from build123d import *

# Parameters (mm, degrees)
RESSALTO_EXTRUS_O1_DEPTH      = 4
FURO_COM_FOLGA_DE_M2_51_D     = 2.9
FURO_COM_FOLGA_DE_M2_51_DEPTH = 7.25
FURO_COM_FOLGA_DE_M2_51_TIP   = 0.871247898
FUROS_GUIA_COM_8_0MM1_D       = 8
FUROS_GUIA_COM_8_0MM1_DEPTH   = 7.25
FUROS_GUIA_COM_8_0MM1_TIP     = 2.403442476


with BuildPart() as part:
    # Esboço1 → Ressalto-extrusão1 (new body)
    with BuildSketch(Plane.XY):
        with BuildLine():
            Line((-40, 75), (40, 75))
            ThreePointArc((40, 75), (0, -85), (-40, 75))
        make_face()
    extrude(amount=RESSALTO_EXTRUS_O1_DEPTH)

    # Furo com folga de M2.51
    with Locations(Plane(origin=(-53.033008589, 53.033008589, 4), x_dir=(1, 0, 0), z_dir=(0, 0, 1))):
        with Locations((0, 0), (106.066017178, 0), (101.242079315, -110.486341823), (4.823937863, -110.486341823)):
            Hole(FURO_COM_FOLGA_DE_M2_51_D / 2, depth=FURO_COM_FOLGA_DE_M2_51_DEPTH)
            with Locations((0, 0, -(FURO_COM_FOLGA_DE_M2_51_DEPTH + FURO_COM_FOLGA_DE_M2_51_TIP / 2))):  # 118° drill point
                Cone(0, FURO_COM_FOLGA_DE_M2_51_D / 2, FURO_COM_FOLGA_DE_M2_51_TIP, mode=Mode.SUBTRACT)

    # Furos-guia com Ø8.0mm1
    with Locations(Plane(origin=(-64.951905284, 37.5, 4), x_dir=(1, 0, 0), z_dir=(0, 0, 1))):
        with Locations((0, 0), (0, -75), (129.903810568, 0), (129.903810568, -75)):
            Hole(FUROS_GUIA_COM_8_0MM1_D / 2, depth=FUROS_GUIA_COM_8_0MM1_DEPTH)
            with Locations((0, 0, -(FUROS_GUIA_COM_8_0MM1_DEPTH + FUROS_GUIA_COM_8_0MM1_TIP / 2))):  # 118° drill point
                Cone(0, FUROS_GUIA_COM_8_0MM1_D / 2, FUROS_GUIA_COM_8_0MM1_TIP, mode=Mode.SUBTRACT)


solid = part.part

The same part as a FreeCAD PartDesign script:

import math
import FreeCAD as App
import Part
import Sketcher

V = App.Vector
Q = App.Units.Quantity

doc = App.newDocument("Part")
body = doc.addObject("PartDesign::Body", "Body")

sketch1 = body.newObject("Sketcher::SketchObject", "Sketch")
sketch1.AttachmentSupport = (doc.getObject("XY_Plane"), [""])
sketch1.MapMode = "FlatFace"
sketch1.addGeometry(Part.LineSegment(V(40, 75, 0), V(-40, 75, 0)), False)
sketch1.addGeometry(Part.ArcOfCircle(Part.Circle(V(0, 0, 0), V(0, 0, 1), 85), math.radians(118), math.radians(422)), False)
sketch1.addConstraint(Sketcher.Constraint("Coincident", 0, 1, 1, 2))
sketch1.addConstraint(Sketcher.Constraint("Coincident", 1, 1, 0, 2))
sketch1.addConstraint(Sketcher.Constraint("Horizontal", 0))
sketch1.addConstraint(Sketcher.Constraint("Coincident", 1, 3, -1, 1))
sketch1.addConstraint(Sketcher.Constraint("Radius", 1, Q("85 mm")))
sketch1.addConstraint(Sketcher.Constraint("DistanceX", 0, 2, 0, 1, Q("80 mm")))
pad1 = body.newObject("PartDesign::Pad", "Pad")
pad1.Profile = sketch1
pad1.Length = 4

sketch2 = body.newObject("Sketcher::SketchObject", "Sketch001")
sketch2.AttachmentSupport = (doc.getObject("XY_Plane"), [""])
sketch2.MapMode = "FlatFace"
sketch2.AttachmentOffset = App.Placement(V(0, 0, 4), App.Rotation())
sketch2.addGeometry(Part.Circle(V(-53, 53, 0), V(0, 0, 1), 1.4), False)
sketch2.addGeometry(Part.Circle(V(53, 53, 0), V(0, 0, 1), 1.4), False)
sketch2.addGeometry(Part.Circle(V(48.2, -57.5, 0), V(0, 0, 1), 1.4), False)
sketch2.addGeometry(Part.Circle(V(-48.2, -57.5, 0), V(0, 0, 1), 1.4), False)
sketch2.addConstraint(Sketcher.Constraint("Equal", 0, 1))
sketch2.addConstraint(Sketcher.Constraint("Equal", 1, 2))
sketch2.addConstraint(Sketcher.Constraint("Equal", 2, 3))
sketch2.addConstraint(Sketcher.Constraint("Symmetric", 0, 3, 1, 3, -2))
sketch2.addConstraint(Sketcher.Constraint("Symmetric", 2, 3, 3, 3, -2))
sketch2.addConstraint(Sketcher.Constraint("Diameter", 0, Q("2.9 mm")))
sketch2.addConstraint(Sketcher.Constraint("DistanceX", 0, 3, -1, 1, Q("53.033009 mm")))
sketch2.addConstraint(Sketcher.Constraint("DistanceY", -1, 1, 0, 3, Q("53.033009 mm")))
sketch2.addConstraint(Sketcher.Constraint("DistanceX", -1, 1, 2, 3, Q("48.209071 mm")))
sketch2.addConstraint(Sketcher.Constraint("DistanceY", 2, 3, 1, 3, Q("110.486342 mm")))
doc.recompute()
hole = body.newObject("PartDesign::Hole", "Hole")
hole.Profile = sketch2
hole.ThreadType = "None"
hole.Diameter = 2.9
hole.DepthType = "Dimension"
hole.Depth = 7.25
hole.DrillPoint = "Angled"
hole.DrillPointAngle = 118

sketch3 = body.newObject("Sketcher::SketchObject", "Sketch002")
sketch3.AttachmentSupport = (doc.getObject("XY_Plane"), [""])
sketch3.MapMode = "FlatFace"
sketch3.AttachmentOffset = App.Placement(V(0, 0, 4), App.Rotation())
sketch3.addGeometry(Part.Circle(V(-65, 37.5, 0), V(0, 0, 1), 4), False)
sketch3.addGeometry(Part.Circle(V(-65, -37.5, 0), V(0, 0, 1), 4), False)
sketch3.addGeometry(Part.Circle(V(65, 37.5, 0), V(0, 0, 1), 4), False)
sketch3.addGeometry(Part.Circle(V(65, -37.5, 0), V(0, 0, 1), 4), False)
sketch3.addConstraint(Sketcher.Constraint("Equal", 0, 1))
sketch3.addConstraint(Sketcher.Constraint("Equal", 1, 2))
sketch3.addConstraint(Sketcher.Constraint("Equal", 2, 3))
sketch3.addConstraint(Sketcher.Constraint("Symmetric", 1, 3, 2, 3, -1, 1))
sketch3.addConstraint(Sketcher.Constraint("Symmetric", 0, 3, 3, 3, -1, 1))
sketch3.addConstraint(Sketcher.Constraint("Symmetric", 0, 3, 2, 3, -2))
sketch3.addConstraint(Sketcher.Constraint("Diameter", 0, Q("8 mm")))
sketch3.addConstraint(Sketcher.Constraint("DistanceY", 1, 3, 0, 3, Q("75 mm")))
sketch3.addConstraint(Sketcher.Constraint("DistanceX", 0, 3, 2, 3, Q("129.903811 mm")))
doc.recompute()
hole2 = body.newObject("PartDesign::Hole", "Hole001")
hole2.Profile = sketch3
hole2.ThreadType = "None"
hole2.Diameter = 8
hole2.DepthType = "Dimension"
hole2.Depth = 7.25
hole2.DrillPoint = "Angled"
hole2.DrillPointAngle = 118

doc.recompute()
